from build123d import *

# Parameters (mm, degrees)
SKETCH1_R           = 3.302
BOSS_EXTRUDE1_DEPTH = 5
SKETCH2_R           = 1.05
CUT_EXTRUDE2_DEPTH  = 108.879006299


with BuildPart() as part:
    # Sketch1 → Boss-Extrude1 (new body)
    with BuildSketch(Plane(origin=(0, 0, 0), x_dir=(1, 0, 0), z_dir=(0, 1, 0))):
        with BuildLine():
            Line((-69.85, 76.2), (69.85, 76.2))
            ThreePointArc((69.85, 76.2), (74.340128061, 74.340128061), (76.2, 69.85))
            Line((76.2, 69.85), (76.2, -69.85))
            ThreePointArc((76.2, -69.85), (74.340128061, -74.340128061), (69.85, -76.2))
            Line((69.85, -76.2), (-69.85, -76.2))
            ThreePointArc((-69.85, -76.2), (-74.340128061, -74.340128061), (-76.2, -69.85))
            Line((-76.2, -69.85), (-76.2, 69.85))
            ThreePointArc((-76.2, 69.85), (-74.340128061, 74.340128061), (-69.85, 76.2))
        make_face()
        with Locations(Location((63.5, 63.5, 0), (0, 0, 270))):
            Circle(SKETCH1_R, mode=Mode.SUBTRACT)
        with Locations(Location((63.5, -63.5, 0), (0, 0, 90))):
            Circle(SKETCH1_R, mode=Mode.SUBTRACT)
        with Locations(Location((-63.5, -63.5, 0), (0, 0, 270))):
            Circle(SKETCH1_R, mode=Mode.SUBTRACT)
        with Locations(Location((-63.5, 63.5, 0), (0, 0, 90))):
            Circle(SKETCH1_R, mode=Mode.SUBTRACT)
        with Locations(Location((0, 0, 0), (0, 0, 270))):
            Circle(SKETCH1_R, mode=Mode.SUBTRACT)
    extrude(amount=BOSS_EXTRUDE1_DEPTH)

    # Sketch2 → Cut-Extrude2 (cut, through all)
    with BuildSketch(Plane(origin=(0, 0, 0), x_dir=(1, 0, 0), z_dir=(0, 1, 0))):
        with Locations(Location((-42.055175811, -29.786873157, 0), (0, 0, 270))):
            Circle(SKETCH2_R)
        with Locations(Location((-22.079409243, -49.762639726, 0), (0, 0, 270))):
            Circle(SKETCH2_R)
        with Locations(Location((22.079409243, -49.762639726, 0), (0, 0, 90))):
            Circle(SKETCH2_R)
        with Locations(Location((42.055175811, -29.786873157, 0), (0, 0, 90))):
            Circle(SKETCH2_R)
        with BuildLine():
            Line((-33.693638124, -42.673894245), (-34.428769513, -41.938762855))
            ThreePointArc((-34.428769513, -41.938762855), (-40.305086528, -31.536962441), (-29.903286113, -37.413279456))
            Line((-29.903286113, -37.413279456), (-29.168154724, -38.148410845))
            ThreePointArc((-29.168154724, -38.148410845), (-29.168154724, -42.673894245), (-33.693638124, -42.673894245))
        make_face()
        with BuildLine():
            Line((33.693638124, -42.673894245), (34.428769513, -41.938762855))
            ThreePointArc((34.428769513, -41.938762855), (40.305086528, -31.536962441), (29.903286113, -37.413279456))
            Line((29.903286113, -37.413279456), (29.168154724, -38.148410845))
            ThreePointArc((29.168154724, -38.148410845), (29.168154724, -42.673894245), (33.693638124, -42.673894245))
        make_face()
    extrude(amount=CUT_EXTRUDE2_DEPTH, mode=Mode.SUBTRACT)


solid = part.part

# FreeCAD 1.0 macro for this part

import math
import FreeCAD as App
import Part
import Sketcher

doc = App.newDocument("Part")
body = doc.addObject("PartDesign::Body", "Body")

# Sketch on XZ plane
sketch1 = body.newObject("Sketcher::SketchObject", "Sketch")
sketch1.AttachmentSupport = (doc.getObject("XZ_Plane"), [""])
sketch1.MapMode = "FlatFace"
sketch1.addGeometry([
    Part.LineSegment(App.Vector(69.85, -76.2, 0), App.Vector(-69.85, -76.2, 0)),  # 0
    Part.ArcOfCircle(Part.Circle(App.Vector(-69.85, -69.85, 0), App.Vector(0, 0, 1), 6.35), math.radians(180), math.radians(270)),  # 1
    Part.LineSegment(App.Vector(-76.2, -69.85, 0), App.Vector(-76.2, 69.85, 0)),  # 2
    Part.ArcOfCircle(Part.Circle(App.Vector(-69.85, 69.85, 0), App.Vector(0, 0, 1), 6.35), math.radians(90), math.radians(180)),  # 3
    Part.LineSegment(App.Vector(-69.85, 76.2, 0), App.Vector(69.85, 76.2, 0)),  # 4
    Part.ArcOfCircle(Part.Circle(App.Vector(69.85, 69.85, 0), App.Vector(0, 0, 1), 6.35), math.radians(0), math.radians(90)),  # 5
    Part.LineSegment(App.Vector(76.2, 69.85, 0), App.Vector(76.2, -69.85, 0)),  # 6
    Part.ArcOfCircle(Part.Circle(App.Vector(69.85, -69.85, 0), App.Vector(0, 0, 1), 6.35), math.radians(-90), math.radians(0)),  # 7
    Part.Circle(App.Vector(63.5, 63.5, 0), App.Vector(0, 0, 1), 3.302),  # 8
    Part.Circle(App.Vector(-63.5, 63.5, 0), App.Vector(0, 0, 1), 3.302),  # 9
    Part.Circle(App.Vector(63.5, -63.5, 0), App.Vector(0, 0, 1), 3.302),  # 10
    Part.Circle(App.Vector(0, 0, 0), App.Vector(0, 0, 1), 3.302),  # 11
    Part.Circle(App.Vector(-63.5, -63.5, 0), App.Vector(0, 0, 1), 3.302),  # 12
], False)
sketch1.addConstraint([
    Sketcher.Constraint("Tangent", 0, 2, 1, 2),
    Sketcher.Constraint("Tangent", 1, 1, 2, 1),
    Sketcher.Constraint("Tangent", 2, 2, 3, 2),
    Sketcher.Constraint("Tangent", 3, 1, 4, 1),
    Sketcher.Constraint("Tangent", 4, 2, 5, 2),
    Sketcher.Constraint("Tangent", 5, 1, 6, 1),
    Sketcher.Constraint("Tangent", 6, 2, 7, 2),
    Sketcher.Constraint("Tangent", 7, 1, 0, 1),
    Sketcher.Constraint("Horizontal", 0),
    Sketcher.Constraint("Vertical", 2),
    Sketcher.Constraint("Horizontal", 4),
    Sketcher.Constraint("Vertical", 6),
    Sketcher.Constraint("Coincident", 11, 3, -1, 1),
    Sketcher.Constraint("Equal", 1, 3),
    Sketcher.Constraint("Equal", 3, 5),
    Sketcher.Constraint("Equal", 5, 7),
    Sketcher.Constraint("Equal", 8, 9),
    Sketcher.Constraint("Equal", 9, 10),
    Sketcher.Constraint("Equal", 10, 11),
    Sketcher.Constraint("Equal", 11, 12),
    Sketcher.Constraint("Symmetric", 1, 3, 5, 3, -1, 1),
    Sketcher.Constraint("Symmetric", 9, 3, 10, 3, -1, 1),
    Sketcher.Constraint("Symmetric", 8, 3, 12, 3, -1, 1),
    Sketcher.Constraint("Symmetric", 8, 3, 9, 3, -2),
    Sketcher.Constraint("Equal", 4, 2),
    Sketcher.Constraint("Radius", 1, 6.35),
    Sketcher.Constraint("Diameter", 8, 6.604),
    Sketcher.Constraint("DistanceX", 0, 2, 0, 1, 139.7),
    Sketcher.Constraint("DistanceX", 9, 3, 8, 3, 127.0),
    Sketcher.Constraint("DistanceY", 10, 3, 8, 3, 127.0),
])
pad1 = body.newObject("PartDesign::Pad", "Pad")
pad1.Profile = sketch1
pad1.Length = 5
pad1.Reversed = True

# Sketch on XZ plane
sketch2 = body.newObject("Sketcher::SketchObject", "Sketch001")
sketch2.AttachmentSupport = (doc.getObject("XZ_Plane"), [""])
sketch2.MapMode = "FlatFace"
sketch2.addGeometry([
    Part.Circle(App.Vector(-42.055176, 29.786873, 0), App.Vector(0, 0, 1), 1.05),  # 0
    Part.Circle(App.Vector(-22.079409, 49.76264, 0), App.Vector(0, 0, 1), 1.05),  # 1
    Part.Circle(App.Vector(22.079409, 49.76264, 0), App.Vector(0, 0, 1), 1.05),  # 2
    Part.Circle(App.Vector(42.055176, 29.786873, 0), App.Vector(0, 0, 1), 1.05),  # 3
    Part.LineSegment(App.Vector(-34.42877, 41.938763, 0), App.Vector(-33.693638, 42.673894, 0)),  # 4
    Part.ArcOfCircle(Part.Circle(App.Vector(-31.430896, 40.411153, 0), App.Vector(0, 0, 1), 3.2), math.radians(-45), math.radians(135)),  # 5
    Part.LineSegment(App.Vector(-29.168155, 38.148411, 0), App.Vector(-29.903286, 37.413279, 0)),  # 6
    Part.ArcOfCircle(Part.Circle(App.Vector(-35.921024, 35.921024, 0), App.Vector(0, 0, 1), 6.2), math.radians(76.072951), math.radians(373.927049)),  # 7
    Part.LineSegment(App.Vector(33.693638, 42.673894, 0), App.Vector(34.42877, 41.938763, 0)),  # 8
    Part.ArcOfCircle(Part.Circle(App.Vector(35.921024, 35.921024, 0), App.Vector(0, 0, 1), 6.2), math.radians(166.072951), math.radians(463.927049)),  # 9
    Part.LineSegment(App.Vector(29.903286, 37.413279, 0), App.Vector(29.168155, 38.148411, 0)),  # 10
    Part.ArcOfCircle(Part.Circle(App.Vector(31.430896, 40.411153, 0), App.Vector(0, 0, 1), 3.2), math.radians(45), math.radians(225)),  # 11
], False)
sketch2.addConstraint([
    Sketcher.Constraint("Tangent", 4, 2, 5, 2),
    Sketcher.Constraint("Tangent", 5, 1, 6, 1),
    Sketcher.Constraint("Coincident", 6, 2, 7, 2),
    Sketcher.Constraint("Coincident", 7, 1, 4, 1),
    Sketcher.Constraint("Coincident", 8, 2, 9, 2),
    Sketcher.Constraint("Coincident", 9, 1, 10, 1),
    Sketcher.Constraint("Tangent", 10, 2, 11, 2),
    Sketcher.Constraint("Tangent", 11, 1, 8, 1),
    Sketcher.Constraint("Equal", 0, 1),
    Sketcher.Constraint("Equal", 1, 2),
    Sketcher.Constraint("Equal", 2, 3),
    Sketcher.Constraint("Equal", 7, 9),
    Sketcher.Constraint("Equal", 5, 11),
    Sketcher.Constraint("Symmetric", 1, 3, 2, 3, -2),
    Sketcher.Constraint("Symmetric", 0, 3, 3, 3, -2),
    Sketcher.Constraint("Symmetric", 7, 3, 9, 3, -2),
    Sketcher.Constraint("Symmetric", 5, 3, 11, 3, -2),
    Sketcher.Constraint("Parallel", 4, 6),
    Sketcher.Constraint("Perpendicular", 6, 8),
    Sketcher.Constraint("Parallel", 8, 10),
    Sketcher.Constraint("Horizontal", 7, 1, 8, 2),
    Sketcher.Constraint("Equal", 4, 6),
    Sketcher.Constraint("Diameter", 0, 2.1),
    Sketcher.Constraint("Radius", 5, 3.2),
    Sketcher.Constraint("Radius", 7, 6.2),
    Sketcher.Constraint("DistanceX", 7, 3, 3, 3, 77.9762),
    Sketcher.Constraint("DistanceX", 1, 3, -1, 1, 22.079409),
    Sketcher.Constraint("DistanceY", -1, 1, 1, 3, 49.76264),
    Sketcher.Constraint("DistanceX", 4, 2, -1, 1, 33.693638),
    Sketcher.Constraint("DistanceY", -1, 1, 5, 1, 38.148411),
    Sketcher.Constraint("DistanceY", -1, 1, 6, 2, 37.413279),
    Sketcher.Constraint("DistanceY", 0, 3, 5, 3, 10.624279),
])
pocket1 = body.newObject("PartDesign::Pocket", "Pocket")
pocket1.Profile = sketch2
pocket1.Type = "ThroughAll"

doc.recompute()
